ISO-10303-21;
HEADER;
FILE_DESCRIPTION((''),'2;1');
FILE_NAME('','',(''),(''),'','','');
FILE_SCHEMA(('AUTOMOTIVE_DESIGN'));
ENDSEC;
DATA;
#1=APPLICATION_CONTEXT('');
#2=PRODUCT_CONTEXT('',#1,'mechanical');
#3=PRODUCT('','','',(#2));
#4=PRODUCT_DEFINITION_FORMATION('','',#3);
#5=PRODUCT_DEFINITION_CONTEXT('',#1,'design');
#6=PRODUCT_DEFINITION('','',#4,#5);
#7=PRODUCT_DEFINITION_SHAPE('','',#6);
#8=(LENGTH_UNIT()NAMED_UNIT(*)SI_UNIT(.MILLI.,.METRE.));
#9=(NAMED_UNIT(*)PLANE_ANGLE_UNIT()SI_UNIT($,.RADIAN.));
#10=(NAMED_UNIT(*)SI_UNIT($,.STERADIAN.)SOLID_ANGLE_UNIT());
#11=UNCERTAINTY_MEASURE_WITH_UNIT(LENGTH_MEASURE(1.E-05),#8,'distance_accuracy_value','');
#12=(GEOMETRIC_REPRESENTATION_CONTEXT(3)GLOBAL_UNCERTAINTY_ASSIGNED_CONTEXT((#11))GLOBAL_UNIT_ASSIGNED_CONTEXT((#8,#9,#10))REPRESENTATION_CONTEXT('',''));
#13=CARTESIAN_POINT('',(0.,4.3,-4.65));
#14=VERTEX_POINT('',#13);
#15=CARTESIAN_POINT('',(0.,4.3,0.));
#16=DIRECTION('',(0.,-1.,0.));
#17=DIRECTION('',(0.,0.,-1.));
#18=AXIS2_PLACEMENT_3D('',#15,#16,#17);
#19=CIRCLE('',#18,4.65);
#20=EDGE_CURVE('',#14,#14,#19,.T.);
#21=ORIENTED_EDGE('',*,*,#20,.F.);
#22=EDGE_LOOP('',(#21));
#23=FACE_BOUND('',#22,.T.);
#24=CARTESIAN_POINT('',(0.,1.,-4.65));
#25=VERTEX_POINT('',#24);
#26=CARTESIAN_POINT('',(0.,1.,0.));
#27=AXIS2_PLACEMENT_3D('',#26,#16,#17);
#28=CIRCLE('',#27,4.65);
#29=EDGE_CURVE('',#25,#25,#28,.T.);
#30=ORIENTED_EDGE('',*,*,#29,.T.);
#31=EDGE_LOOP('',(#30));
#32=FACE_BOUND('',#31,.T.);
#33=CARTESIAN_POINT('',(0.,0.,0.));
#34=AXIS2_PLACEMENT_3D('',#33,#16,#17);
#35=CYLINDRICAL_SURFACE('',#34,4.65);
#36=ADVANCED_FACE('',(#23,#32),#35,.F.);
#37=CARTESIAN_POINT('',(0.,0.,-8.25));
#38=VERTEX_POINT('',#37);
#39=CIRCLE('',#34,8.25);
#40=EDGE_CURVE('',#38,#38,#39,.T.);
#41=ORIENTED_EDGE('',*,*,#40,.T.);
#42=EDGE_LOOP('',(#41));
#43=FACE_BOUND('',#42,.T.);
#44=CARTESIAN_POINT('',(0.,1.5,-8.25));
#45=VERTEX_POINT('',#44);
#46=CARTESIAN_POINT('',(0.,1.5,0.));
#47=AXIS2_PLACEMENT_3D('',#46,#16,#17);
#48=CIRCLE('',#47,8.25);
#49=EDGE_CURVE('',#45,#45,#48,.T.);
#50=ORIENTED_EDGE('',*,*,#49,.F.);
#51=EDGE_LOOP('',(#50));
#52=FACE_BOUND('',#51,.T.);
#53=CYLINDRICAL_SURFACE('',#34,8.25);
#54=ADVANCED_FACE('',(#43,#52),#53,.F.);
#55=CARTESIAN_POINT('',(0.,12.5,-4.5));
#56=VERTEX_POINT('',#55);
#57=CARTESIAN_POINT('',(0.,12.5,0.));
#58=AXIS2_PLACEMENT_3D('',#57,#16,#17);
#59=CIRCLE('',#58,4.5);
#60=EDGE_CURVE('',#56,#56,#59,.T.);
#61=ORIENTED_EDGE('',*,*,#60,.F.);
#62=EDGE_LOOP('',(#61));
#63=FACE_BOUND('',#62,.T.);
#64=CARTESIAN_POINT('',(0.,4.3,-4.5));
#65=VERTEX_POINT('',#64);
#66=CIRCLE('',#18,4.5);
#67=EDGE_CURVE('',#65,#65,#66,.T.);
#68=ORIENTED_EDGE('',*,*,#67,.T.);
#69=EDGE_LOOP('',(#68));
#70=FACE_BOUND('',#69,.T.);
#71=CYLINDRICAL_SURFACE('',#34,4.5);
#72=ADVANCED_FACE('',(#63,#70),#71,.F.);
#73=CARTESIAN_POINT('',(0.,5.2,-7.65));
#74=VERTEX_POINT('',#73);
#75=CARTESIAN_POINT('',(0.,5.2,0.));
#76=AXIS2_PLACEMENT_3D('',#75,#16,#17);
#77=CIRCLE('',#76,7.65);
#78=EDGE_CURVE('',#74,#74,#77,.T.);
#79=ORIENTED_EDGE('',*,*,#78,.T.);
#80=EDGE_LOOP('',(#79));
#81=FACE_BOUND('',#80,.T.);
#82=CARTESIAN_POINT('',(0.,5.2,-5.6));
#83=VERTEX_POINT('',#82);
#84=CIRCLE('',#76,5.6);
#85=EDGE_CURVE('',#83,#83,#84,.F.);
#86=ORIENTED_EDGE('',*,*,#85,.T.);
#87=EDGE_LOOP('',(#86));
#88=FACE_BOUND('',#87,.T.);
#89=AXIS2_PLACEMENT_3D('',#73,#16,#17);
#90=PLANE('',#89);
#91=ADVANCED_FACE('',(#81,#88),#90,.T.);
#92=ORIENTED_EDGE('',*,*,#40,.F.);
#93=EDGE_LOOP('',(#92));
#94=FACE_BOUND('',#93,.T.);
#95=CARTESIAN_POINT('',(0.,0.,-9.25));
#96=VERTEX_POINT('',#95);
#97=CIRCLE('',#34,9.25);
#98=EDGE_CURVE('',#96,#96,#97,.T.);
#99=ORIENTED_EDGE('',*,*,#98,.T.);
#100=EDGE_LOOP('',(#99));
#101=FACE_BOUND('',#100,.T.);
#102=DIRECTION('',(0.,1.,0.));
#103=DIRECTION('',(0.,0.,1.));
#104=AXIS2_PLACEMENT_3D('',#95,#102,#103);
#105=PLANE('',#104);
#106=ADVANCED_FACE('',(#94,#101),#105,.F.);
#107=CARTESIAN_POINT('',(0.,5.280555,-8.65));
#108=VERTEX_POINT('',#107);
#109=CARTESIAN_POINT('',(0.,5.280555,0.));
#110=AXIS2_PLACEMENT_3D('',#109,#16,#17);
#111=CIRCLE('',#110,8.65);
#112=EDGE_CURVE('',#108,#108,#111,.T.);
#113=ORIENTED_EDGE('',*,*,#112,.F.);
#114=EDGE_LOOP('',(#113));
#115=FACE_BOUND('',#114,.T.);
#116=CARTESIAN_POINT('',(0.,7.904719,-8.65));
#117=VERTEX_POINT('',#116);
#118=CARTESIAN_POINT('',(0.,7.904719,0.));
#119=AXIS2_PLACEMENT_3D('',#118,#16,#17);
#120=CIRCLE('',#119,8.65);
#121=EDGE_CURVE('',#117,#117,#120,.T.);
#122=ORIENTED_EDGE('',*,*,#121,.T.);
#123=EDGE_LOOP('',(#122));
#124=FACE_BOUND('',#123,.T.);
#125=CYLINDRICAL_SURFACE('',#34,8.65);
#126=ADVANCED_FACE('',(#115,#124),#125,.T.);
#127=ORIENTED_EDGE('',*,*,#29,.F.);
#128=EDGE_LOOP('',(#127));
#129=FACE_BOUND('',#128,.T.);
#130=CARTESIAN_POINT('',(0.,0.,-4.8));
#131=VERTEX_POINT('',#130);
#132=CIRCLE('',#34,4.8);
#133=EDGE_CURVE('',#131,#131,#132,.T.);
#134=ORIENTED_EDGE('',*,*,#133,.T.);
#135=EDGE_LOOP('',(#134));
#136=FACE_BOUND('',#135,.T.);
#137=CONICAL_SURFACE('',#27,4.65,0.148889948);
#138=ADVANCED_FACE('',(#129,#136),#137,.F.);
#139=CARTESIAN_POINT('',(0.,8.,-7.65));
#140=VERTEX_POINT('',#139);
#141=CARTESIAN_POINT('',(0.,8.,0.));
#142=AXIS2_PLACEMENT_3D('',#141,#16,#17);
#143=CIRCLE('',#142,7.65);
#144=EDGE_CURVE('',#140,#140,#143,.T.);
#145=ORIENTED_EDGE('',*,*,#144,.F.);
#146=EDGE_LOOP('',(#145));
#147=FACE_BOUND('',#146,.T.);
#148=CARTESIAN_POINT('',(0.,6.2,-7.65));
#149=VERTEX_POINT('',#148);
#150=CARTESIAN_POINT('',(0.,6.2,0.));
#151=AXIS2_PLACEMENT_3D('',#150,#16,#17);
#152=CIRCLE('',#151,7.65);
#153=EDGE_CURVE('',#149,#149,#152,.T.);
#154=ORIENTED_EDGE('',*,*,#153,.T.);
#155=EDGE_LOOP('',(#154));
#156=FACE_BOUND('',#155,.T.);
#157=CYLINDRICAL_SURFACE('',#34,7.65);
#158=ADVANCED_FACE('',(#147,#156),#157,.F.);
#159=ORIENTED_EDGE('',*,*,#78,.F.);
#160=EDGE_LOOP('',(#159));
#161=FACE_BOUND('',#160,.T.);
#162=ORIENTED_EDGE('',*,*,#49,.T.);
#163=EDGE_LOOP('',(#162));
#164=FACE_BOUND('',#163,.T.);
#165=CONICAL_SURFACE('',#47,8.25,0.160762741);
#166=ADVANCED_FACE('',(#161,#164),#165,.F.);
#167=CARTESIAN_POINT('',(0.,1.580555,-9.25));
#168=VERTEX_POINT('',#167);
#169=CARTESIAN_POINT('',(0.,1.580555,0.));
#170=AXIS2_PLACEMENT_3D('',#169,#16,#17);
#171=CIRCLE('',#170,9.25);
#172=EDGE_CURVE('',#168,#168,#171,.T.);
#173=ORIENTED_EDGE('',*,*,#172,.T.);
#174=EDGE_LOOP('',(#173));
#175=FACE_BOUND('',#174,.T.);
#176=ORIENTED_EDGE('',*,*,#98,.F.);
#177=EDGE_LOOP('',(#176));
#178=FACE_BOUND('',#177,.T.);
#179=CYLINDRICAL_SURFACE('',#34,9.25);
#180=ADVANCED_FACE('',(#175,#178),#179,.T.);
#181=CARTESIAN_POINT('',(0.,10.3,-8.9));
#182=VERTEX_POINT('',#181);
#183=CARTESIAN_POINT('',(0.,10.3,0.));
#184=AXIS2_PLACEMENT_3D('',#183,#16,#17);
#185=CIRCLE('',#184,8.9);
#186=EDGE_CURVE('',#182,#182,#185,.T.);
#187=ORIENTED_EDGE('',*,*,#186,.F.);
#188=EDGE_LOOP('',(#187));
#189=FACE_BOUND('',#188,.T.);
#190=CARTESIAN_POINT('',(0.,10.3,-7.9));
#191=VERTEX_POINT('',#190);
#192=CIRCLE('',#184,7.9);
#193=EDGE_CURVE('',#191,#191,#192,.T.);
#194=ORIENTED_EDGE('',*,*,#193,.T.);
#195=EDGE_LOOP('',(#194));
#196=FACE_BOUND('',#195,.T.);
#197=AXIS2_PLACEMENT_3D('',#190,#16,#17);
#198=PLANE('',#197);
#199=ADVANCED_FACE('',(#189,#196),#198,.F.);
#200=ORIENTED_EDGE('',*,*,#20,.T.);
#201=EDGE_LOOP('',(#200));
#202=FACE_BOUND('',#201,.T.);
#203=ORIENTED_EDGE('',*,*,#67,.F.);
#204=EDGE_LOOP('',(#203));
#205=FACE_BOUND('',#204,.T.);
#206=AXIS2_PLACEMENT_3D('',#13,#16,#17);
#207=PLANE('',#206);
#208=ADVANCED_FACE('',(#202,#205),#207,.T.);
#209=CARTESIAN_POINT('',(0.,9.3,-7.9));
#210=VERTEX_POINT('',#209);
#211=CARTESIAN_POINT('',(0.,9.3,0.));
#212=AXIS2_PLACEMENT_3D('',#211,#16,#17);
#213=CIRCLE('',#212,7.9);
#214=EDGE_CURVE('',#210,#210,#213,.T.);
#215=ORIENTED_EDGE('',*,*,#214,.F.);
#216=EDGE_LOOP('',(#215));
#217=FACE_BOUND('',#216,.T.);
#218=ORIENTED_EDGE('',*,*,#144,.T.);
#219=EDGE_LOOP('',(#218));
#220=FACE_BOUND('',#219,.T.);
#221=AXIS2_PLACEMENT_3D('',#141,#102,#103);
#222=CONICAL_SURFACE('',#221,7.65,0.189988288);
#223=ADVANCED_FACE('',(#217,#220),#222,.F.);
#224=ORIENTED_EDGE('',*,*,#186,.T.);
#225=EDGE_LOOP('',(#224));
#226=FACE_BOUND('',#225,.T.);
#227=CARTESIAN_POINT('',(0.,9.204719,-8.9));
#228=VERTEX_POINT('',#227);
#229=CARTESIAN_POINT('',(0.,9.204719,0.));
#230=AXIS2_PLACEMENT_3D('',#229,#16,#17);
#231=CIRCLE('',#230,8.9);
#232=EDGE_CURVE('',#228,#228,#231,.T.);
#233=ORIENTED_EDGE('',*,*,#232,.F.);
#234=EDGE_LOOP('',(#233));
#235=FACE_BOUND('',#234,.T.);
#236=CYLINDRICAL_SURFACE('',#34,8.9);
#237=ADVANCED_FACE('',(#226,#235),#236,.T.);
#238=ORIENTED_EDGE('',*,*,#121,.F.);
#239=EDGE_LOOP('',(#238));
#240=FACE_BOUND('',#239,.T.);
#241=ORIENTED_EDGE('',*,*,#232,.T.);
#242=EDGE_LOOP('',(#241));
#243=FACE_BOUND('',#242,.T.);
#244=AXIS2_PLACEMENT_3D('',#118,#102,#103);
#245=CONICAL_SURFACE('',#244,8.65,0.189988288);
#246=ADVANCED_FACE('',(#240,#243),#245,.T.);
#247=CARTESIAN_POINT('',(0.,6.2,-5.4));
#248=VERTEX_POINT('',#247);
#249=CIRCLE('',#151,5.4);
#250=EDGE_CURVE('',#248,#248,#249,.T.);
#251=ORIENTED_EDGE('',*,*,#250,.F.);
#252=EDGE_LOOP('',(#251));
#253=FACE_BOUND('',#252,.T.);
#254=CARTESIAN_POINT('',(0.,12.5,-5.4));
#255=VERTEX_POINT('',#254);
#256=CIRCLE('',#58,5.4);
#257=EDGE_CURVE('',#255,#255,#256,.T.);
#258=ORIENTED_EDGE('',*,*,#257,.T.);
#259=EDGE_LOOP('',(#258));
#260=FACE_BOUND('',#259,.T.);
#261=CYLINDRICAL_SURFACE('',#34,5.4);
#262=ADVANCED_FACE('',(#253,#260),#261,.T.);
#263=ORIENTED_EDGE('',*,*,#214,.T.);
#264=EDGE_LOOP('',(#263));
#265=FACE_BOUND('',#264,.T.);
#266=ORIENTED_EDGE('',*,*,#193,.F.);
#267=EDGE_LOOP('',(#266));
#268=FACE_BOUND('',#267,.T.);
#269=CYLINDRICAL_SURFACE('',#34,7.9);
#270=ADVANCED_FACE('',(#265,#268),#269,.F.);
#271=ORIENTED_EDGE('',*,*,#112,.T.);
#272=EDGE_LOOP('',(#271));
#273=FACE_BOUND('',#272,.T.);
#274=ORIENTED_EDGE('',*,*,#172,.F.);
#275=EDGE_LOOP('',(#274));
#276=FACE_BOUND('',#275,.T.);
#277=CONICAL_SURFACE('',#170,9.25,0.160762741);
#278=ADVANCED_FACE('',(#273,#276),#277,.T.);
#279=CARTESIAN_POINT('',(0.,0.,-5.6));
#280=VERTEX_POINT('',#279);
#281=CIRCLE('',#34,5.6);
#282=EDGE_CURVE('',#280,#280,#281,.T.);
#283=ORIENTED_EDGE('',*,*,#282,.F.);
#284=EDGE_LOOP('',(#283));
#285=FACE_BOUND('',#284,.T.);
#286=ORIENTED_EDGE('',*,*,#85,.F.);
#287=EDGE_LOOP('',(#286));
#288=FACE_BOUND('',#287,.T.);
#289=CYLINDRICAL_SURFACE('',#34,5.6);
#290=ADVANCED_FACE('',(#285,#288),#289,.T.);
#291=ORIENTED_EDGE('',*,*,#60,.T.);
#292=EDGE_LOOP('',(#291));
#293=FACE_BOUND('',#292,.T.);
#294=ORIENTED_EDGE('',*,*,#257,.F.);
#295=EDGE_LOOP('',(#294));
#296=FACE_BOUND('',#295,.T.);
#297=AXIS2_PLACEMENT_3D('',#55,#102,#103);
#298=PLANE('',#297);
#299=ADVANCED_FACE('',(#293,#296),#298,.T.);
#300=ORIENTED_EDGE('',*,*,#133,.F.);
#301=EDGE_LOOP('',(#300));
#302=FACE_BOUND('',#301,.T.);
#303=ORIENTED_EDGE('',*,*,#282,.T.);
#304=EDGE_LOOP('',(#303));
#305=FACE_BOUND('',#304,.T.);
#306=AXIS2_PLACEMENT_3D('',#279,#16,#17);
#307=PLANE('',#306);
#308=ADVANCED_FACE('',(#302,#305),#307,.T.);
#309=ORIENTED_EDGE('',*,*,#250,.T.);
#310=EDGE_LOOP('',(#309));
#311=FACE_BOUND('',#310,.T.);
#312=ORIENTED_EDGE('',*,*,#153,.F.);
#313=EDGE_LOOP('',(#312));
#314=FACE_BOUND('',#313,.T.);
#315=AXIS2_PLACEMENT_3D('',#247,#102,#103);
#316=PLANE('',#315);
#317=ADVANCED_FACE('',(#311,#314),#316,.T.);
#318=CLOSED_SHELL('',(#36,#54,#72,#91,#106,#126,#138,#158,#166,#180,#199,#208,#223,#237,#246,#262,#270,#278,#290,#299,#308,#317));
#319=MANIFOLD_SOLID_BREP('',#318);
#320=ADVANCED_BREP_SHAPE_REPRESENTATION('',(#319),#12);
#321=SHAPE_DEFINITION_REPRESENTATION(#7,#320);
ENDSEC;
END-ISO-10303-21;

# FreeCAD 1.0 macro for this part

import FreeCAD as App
import Part
import Sketcher
Q = App.Units.Quantity


def add_polygon(sketch, points):
    """Adds a closed chain of lines whose ends are joined by coincident constraints."""
    first, n = sketch.GeometryCount, len(points)
    for a, b in zip(points, points[1:] + points[:1]):
        sketch.addGeometry(Part.LineSegment(App.Vector(*a, 0), App.Vector(*b, 0)), False)
    for i in range(n):
        sketch.addConstraint(Sketcher.Constraint("Coincident", first + i, 2, first + (i + 1) % n, 1))

doc = App.newDocument("Part")
body = doc.addObject("PartDesign::Body", "Body")

sketch1 = doc.addObject("Sketcher::SketchObject", "Sketch")
body.addObject(sketch1)
sketch1.AttachmentSupport = (doc.YZ_Plane, [""])
sketch1.MapMode = "FlatFace"
add_polygon(sketch1, [(4.3, -4.65), (1, -4.65), (0, -4.8), (0, -5.6), (6.2, -5.6), (6.2, -5.4), (12.5, -5.4), (12.5, -4.5), (4.3, -4.5)])
sketch1.addConstraint([
    Sketcher.Constraint("Horizontal", 0),
    Sketcher.Constraint("Vertical", 2),
    Sketcher.Constraint("Horizontal", 3),
    Sketcher.Constraint("Vertical", 4),
    Sketcher.Constraint("Horizontal", 5),
    Sketcher.Constraint("Vertical", 6),
    Sketcher.Constraint("Horizontal", 7),
    Sketcher.Constraint("Vertical", 8),
    Sketcher.Constraint("PointOnObject", 1, 2, -2),
    Sketcher.Constraint("DistanceX", 0, 2, 0, 1, Q("3.3 mm")),
    Sketcher.Constraint("DistanceX", 3, 1, 3, 2, Q("6.2 mm")),
    Sketcher.Constraint("DistanceX", 5, 1, 5, 2, Q("6.3 mm")),
    Sketcher.Constraint("DistanceX", 7, 2, 7, 1, Q("8.2 mm")),
    Sketcher.Constraint("DistanceY", 2, 2, 2, 1, Q("0.8 mm")),
    Sketcher.Constraint("DistanceY", 4, 1, 4, 2, Q("0.2 mm")),
    Sketcher.Constraint("DistanceY", 6, 1, 6, 2, Q("0.9 mm")),
    Sketcher.Constraint("DistanceY", 8, 2, 8, 1, Q("0.15 mm")),
    Sketcher.Constraint("DistanceY", 1, 2, -1, 1, Q("4.8 mm")),
])
revolution = doc.addObject("PartDesign::Revolution", "Revolution")
body.addObject(revolution)
revolution.Profile = sketch1
revolution.ReferenceAxis = (sketch1, ["H_Axis"])
revolution.Angle = 360

sketch2 = doc.addObject("Sketcher::SketchObject", "Sketch001")
body.addObject(sketch2)
sketch2.AttachmentSupport = (doc.YZ_Plane, [""])
sketch2.MapMode = "FlatFace"
add_polygon(sketch2, [(6.2, -5.6), (5.2, -5.6), (5.2, -7.65), (6.2, -7.65)])
sketch2.addConstraint([
    Sketcher.Constraint("Horizontal", 0),
    Sketcher.Constraint("Vertical", 1),
    Sketcher.Constraint("Horizontal", 2),
    Sketcher.Constraint("Vertical", 3),
    Sketcher.Constraint("DistanceX", 0, 2, 0, 1, Q("1 mm")),
    Sketcher.Constraint("DistanceY", 1, 2, 1, 1, Q("2.05 mm")),
    Sketcher.Constraint("DistanceX", -1, 1, 0, 2, Q("5.2 mm")),
    Sketcher.Constraint("DistanceY", 0, 2, -1, 1, Q("5.6 mm")),
])
revolution2 = doc.addObject("PartDesign::Revolution", "Revolution001")
body.addObject(revolution2)
revolution2.Profile = sketch2
revolution2.ReferenceAxis = (sketch2, ["H_Axis"])
revolution2.Angle = 360

sketch3 = doc.addObject("Sketcher::SketchObject", "Sketch002")
body.addObject(sketch3)
sketch3.AttachmentSupport = (doc.YZ_Plane, [""])
sketch3.MapMode = "FlatFace"
add_polygon(sketch3, [(10.3, -7.9), (9.3, -7.9), (8, -7.65), (5.2, -7.65), (1.5, -8.25), (0, -8.25), (0, -9.25), (1.580555, -9.25), (5.280555, -8.65), (7.904719, -8.65), (9.204719, -8.9), (10.3, -8.9)])
sketch3.addConstraint([
    Sketcher.Constraint("Horizontal", 0),
    Sketcher.Constraint("Horizontal", 2),
    Sketcher.Constraint("Horizontal", 4),
    Sketcher.Constraint("Vertical", 5),
    Sketcher.Constraint("Horizontal", 6),
    Sketcher.Constraint("Horizontal", 8),
    Sketcher.Constraint("Horizontal", 10),
    Sketcher.Constraint("Vertical", 11),
    Sketcher.Constraint("PointOnObject", 4, 2, -2),
    Sketcher.Constraint("Parallel", 3, 7),
    Sketcher.Constraint("Parallel", 1, 9),
    Sketcher.Constraint("Equal", 0, 5),
    Sketcher.Constraint("Equal", 5, 11),
    Sketcher.Constraint("Equal", 3, 7),
    Sketcher.Constraint("DistanceX", 0, 2, 0, 1, Q("1 mm")),
    Sketcher.Constraint("DistanceX", 2, 2, 2, 1, Q("2.8 mm")),
    Sketcher.Constraint("DistanceX", 4, 2, 4, 1, Q("1.5 mm")),
    Sketcher.Constraint("DistanceX", -1, 1, 1, 2, Q("8 mm")),
    Sketcher.Constraint("DistanceX", -1, 1, 0, 2, Q("9.3 mm")),
    Sketcher.Constraint("DistanceY", 0, 2, -1, 1, Q("7.9 mm")),
    Sketcher.Constraint("DistanceY", 3, 2, 2, 2, Q("0.6 mm")),
    Sketcher.Constraint("DistanceY", 1, 2, -1, 1, Q("7.65 mm")),
    Sketcher.Constraint("DistanceX", 10, 1, 10, 2, Q("1.095281 mm")),
    Sketcher.Constraint("DistanceX", 6, 1, 6, 2, Q("1.580555 mm")),
])
revolution3 = doc.addObject("PartDesign::Revolution", "Revolution002")
body.addObject(revolution3)
revolution3.Profile = sketch3
revolution3.ReferenceAxis = (sketch3, ["H_Axis"])
revolution3.Angle = 360

doc.recompute()
